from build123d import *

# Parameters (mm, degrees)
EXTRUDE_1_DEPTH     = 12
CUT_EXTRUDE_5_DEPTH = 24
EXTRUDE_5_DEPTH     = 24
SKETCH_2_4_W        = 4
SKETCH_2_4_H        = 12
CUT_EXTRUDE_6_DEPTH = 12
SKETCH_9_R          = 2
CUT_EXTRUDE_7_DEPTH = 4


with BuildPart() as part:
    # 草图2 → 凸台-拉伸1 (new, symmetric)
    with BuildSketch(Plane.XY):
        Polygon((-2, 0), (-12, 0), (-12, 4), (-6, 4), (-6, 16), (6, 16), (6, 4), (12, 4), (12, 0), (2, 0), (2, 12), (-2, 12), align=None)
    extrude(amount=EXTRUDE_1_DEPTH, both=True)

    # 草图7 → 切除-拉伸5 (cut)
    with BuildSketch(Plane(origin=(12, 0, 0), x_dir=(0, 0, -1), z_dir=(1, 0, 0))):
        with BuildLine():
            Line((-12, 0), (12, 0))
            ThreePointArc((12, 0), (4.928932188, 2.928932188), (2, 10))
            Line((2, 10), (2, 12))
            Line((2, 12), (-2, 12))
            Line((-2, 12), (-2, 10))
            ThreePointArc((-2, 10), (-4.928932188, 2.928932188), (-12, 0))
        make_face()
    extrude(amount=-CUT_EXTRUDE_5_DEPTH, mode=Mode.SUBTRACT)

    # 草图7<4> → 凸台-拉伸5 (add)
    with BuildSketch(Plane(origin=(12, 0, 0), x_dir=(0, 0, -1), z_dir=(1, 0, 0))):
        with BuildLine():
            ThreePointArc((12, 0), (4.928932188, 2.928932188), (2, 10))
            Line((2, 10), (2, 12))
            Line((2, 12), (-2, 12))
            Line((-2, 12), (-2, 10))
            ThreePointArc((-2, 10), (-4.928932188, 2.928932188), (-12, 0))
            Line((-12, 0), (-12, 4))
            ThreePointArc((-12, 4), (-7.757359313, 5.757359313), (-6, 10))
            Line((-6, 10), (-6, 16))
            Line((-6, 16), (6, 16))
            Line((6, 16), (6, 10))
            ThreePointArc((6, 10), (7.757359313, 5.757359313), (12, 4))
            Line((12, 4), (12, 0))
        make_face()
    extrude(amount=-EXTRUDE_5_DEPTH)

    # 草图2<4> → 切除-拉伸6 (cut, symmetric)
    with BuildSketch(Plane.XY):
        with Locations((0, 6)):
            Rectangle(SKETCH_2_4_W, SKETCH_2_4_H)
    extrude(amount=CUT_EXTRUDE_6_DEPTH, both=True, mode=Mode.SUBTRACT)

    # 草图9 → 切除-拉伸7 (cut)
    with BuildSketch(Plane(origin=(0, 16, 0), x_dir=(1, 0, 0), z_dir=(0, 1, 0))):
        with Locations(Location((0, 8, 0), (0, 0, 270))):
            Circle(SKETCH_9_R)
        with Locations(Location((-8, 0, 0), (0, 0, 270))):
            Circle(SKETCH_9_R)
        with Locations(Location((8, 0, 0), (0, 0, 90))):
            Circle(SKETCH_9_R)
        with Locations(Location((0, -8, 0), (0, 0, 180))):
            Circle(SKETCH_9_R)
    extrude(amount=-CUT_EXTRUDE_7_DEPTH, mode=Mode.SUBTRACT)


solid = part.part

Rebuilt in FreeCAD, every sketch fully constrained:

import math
import FreeCAD as App
import Part
import Sketcher
from FreeCAD import Vector
Q = App.Units.Quantity


def add_polygon(sketch, points):
    """Adds a closed chain of lines whose ends are joined by coincident constraints."""
    first, n = sketch.GeometryCount, len(points)
    for a, b in zip(points, points[1:] + points[:1]):
        sketch.addGeometry(Part.LineSegment(App.Vector(*a, 0), App.Vector(*b, 0)), False)
    for i in range(n):
        sketch.addConstraint(Sketcher.Constraint("Coincident", first + i, 2, first + (i + 1) % n, 1))

doc = App.newDocument("Part")
body = doc.addObject("PartDesign::Body", "Body")

# Sketch on XY plane
sketch1 = doc.addObject("Sketcher::SketchObject", "Sketch")
body.addObject(sketch1)
sketch1.AttachmentSupport = (doc.XY_Plane, [""])
sketch1.MapMode = "FlatFace"
add_polygon(sketch1, [(-12, 0), (-2, 0), (-2, 12), (2, 12), (2, 0), (12, 0), (12, 4), (6, 4), (6, 16), (-6, 16), (-6, 4), (-12, 4)])  # lines 0-11
sketch1.addConstraint(Sketcher.Constraint("Horizontal", 0))
sketch1.addConstraint(Sketcher.Constraint("Vertical", 1))
sketch1.addConstraint(Sketcher.Constraint("Horizontal", 2))
sketch1.addConstraint(Sketcher.Constraint("Vertical", 3))
sketch1.addConstraint(Sketcher.Constraint("Horizontal", 4))
sketch1.addConstraint(Sketcher.Constraint("Vertical", 5))
sketch1.addConstraint(Sketcher.Constraint("Horizontal", 6))
sketch1.addConstraint(Sketcher.Constraint("Vertical", 7))
sketch1.addConstraint(Sketcher.Constraint("Horizontal", 8))
sketch1.addConstraint(Sketcher.Constraint("Vertical", 9))
sketch1.addConstraint(Sketcher.Constraint("Horizontal", 10))
sketch1.addConstraint(Sketcher.Constraint("Vertical", 11))
sketch1.addConstraint(Sketcher.Constraint("Symmetric", 0, 2, 3, 2, -1, 1))
sketch1.addConstraint(Sketcher.Constraint("Symmetric", 6, 2, 9, 2, -2))
sketch1.addConstraint(Sketcher.Constraint("Symmetric", 4, 2, 11, 2, -2))
sketch1.addConstraint(Sketcher.Constraint("Equal", 8, 1))
sketch1.addConstraint(Sketcher.Constraint("Equal", 2, 5))
sketch1.addConstraint(Sketcher.Constraint("Equal", 3, 7))
sketch1.addConstraint(Sketcher.Constraint("DistanceX", 0, 1, 0, 2, Q("10 mm")))
sketch1.addConstraint(Sketcher.Constraint("DistanceX", 2, 1, 2, 2, Q("4 mm")))
sketch1.addConstraint(Sketcher.Constraint("DistanceX", 6, 2, 6, 1, Q("6 mm")))
pad1 = doc.addObject("PartDesign::Pad", "Pad")
body.addObject(pad1)
pad1.Profile = sketch1
pad1.Length = 24
pad1.Midplane = True

# Sketch on YZ plane
sketch2 = doc.addObject("Sketcher::SketchObject", "Sketch001")
body.addObject(sketch2)
sketch2.AttachmentSupport = (doc.YZ_Plane, [""])
sketch2.MapMode = "FlatFace"
sketch2.AttachmentOffset = App.Placement(Vector(0, 0, 12), App.Rotation())
sketch2.addGeometry(Part.LineSegment(Vector(0, 12, 0), Vector(0, -12, 0)), False)
sketch2.addGeometry(Part.ArcOfCircle(Part.Circle(Vector(10, -12, 0), Vector(0, 0, 1), 10), math.radians(90), math.radians(180)), False)
sketch2.addGeometry(Part.LineSegment(Vector(10, -2, 0), Vector(12, -2, 0)), False)
sketch2.addGeometry(Part.LineSegment(Vector(12, -2, 0), Vector(12, 2, 0)), False)
sketch2.addGeometry(Part.LineSegment(Vector(12, 2, 0), Vector(10, 2, 0)), False)
sketch2.addGeometry(Part.ArcOfCircle(Part.Circle(Vector(10, 12, 0), Vector(0, 0, 1), 10), math.radians(180), math.radians(270)), False)
sketch2.addConstraint(Sketcher.Constraint("Tangent", 0, 2, 1, 2))
sketch2.addConstraint(Sketcher.Constraint("Tangent", 1, 1, 2, 1))
sketch2.addConstraint(Sketcher.Constraint("Coincident", 2, 2, 3, 1))
sketch2.addConstraint(Sketcher.Constraint("Coincident", 3, 2, 4, 1))
sketch2.addConstraint(Sketcher.Constraint("Tangent", 4, 2, 5, 2))
sketch2.addConstraint(Sketcher.Constraint("Tangent", 5, 1, 0, 1))
sketch2.addConstraint(Sketcher.Constraint("Vertical", 0))
sketch2.addConstraint(Sketcher.Constraint("Horizontal", 2))
sketch2.addConstraint(Sketcher.Constraint("Vertical", 3))
sketch2.addConstraint(Sketcher.Constraint("Horizontal", 4))
sketch2.addConstraint(Sketcher.Constraint("Equal", 1, 5))
sketch2.addConstraint(Sketcher.Constraint("Symmetric", 0, 2, 5, 1, -1, 1))
sketch2.addConstraint(Sketcher.Constraint("Radius", 1, Q("10 mm")))
sketch2.addConstraint(Sketcher.Constraint("DistanceX", 2, 1, 2, 2, Q("2 mm")))
sketch2.addConstraint(Sketcher.Constraint("DistanceY", 0, 2, 0, 1, Q("24 mm")))
pocket1 = doc.addObject("PartDesign::Pocket", "Pocket")
body.addObject(pocket1)
pocket1.Profile = sketch2
pocket1.Length = 24

# Sketch on YZ plane
sketch3 = doc.addObject("Sketcher::SketchObject", "Sketch002")
body.addObject(sketch3)
sketch3.AttachmentSupport = (doc.YZ_Plane, [""])
sketch3.MapMode = "FlatFace"
sketch3.AttachmentOffset = App.Placement(Vector(0, 0, 12), App.Rotation())
sketch3.addGeometry(Part.ArcOfCircle(Part.Circle(Vector(10, -12, 0), Vector(0, 0, 1), 10), math.radians(90), math.radians(180)), False)
sketch3.addGeometry(Part.LineSegment(Vector(0, -12, 0), Vector(4, -12, 0)), False)
sketch3.addGeometry(Part.ArcOfCircle(Part.Circle(Vector(10, -12, 0), Vector(0, 0, 1), 6), math.radians(90), math.radians(180)), False)
sketch3.addGeometry(Part.LineSegment(Vector(10, -6, 0), Vector(16, -6, 0)), False)
sketch3.addGeometry(Part.LineSegment(Vector(16, -6, 0), Vector(16, 6, 0)), False)
sketch3.addGeometry(Part.LineSegment(Vector(16, 6, 0), Vector(10, 6, 0)), False)
sketch3.addGeometry(Part.ArcOfCircle(Part.Circle(Vector(10, 12, 0), Vector(0, 0, 1), 6), math.radians(180), math.radians(270)), False)
sketch3.addGeometry(Part.LineSegment(Vector(4, 12, 0), Vector(0, 12, 0)), False)
sketch3.addGeometry(Part.ArcOfCircle(Part.Circle(Vector(10, 12, 0), Vector(0, 0, 1), 10), math.radians(180), math.radians(270)), False)
sketch3.addGeometry(Part.LineSegment(Vector(10, 2, 0), Vector(12, 2, 0)), False)
sketch3.addGeometry(Part.LineSegment(Vector(12, 2, 0), Vector(12, -2, 0)), False)
sketch3.addGeometry(Part.LineSegment(Vector(12, -2, 0), Vector(10, -2, 0)), False)
sketch3.addConstraint(Sketcher.Constraint("Coincident", 0, 2, 1, 1))
sketch3.addConstraint(Sketcher.Constraint("Coincident", 1, 2, 2, 2))
sketch3.addConstraint(Sketcher.Constraint("Tangent", 2, 1, 3, 1))
sketch3.addConstraint(Sketcher.Constraint("Coincident", 3, 2, 4, 1))
sketch3.addConstraint(Sketcher.Constraint("Coincident", 4, 2, 5, 1))
sketch3.addConstraint(Sketcher.Constraint("Tangent", 5, 2, 6, 2))
sketch3.addConstraint(Sketcher.Constraint("Coincident", 6, 1, 7, 1))
sketch3.addConstraint(Sketcher.Constraint("Coincident", 7, 2, 8, 1))
sketch3.addConstraint(Sketcher.Constraint("Tangent", 8, 2, 9, 1))
sketch3.addConstraint(Sketcher.Constraint("Coincident", 9, 2, 10, 1))
sketch3.addConstraint(Sketcher.Constraint("Coincident", 10, 2, 11, 1))
sketch3.addConstraint(Sketcher.Constraint("Tangent", 11, 2, 0, 1))
sketch3.addConstraint(Sketcher.Constraint("Horizontal", 1))
sketch3.addConstraint(Sketcher.Constraint("Horizontal", 3))
sketch3.addConstraint(Sketcher.Constraint("Vertical", 4))
sketch3.addConstraint(Sketcher.Constraint("Horizontal", 5))
sketch3.addConstraint(Sketcher.Constraint("Horizontal", 7))
sketch3.addConstraint(Sketcher.Constraint("Horizontal", 9))
sketch3.addConstraint(Sketcher.Constraint("Vertical", 10))
sketch3.addConstraint(Sketcher.Constraint("Horizontal", 11))
sketch3.addConstraint(Sketcher.Constraint("Coincident", 2, 3, 0, 3))
sketch3.addConstraint(Sketcher.Constraint("Coincident", 8, 3, 6, 3))
sketch3.addConstraint(Sketcher.Constraint("Equal", 2, 6))
sketch3.addConstraint(Sketcher.Constraint("Equal", 0, 8))
sketch3.addConstraint(Sketcher.Constraint("Symmetric", 0, 2, 7, 2, -1, 1))
sketch3.addConstraint(Sketcher.Constraint("Symmetric", 0, 3, 6, 3, -1))
sketch3.addConstraint(Sketcher.Constraint("Horizontal", 2, 3, 0, 2))
sketch3.addConstraint(Sketcher.Constraint("Equal", 7, 10))
sketch3.addConstraint(Sketcher.Constraint("Radius", 0, Q("10 mm")))
sketch3.addConstraint(Sketcher.Constraint("Radius", 2, Q("6 mm")))
sketch3.addConstraint(Sketcher.Constraint("DistanceX", 3, 1, 3, 2, Q("6 mm")))
sketch3.addConstraint(Sketcher.Constraint("DistanceX", 9, 1, 9, 2, Q("2 mm")))
pad2 = doc.addObject("PartDesign::Pad", "Pad001")
body.addObject(pad2)
pad2.Profile = sketch3
pad2.Length = 24
pad2.Reversed = True

# Sketch on XY plane
sketch4 = doc.addObject("Sketcher::SketchObject", "Sketch003")
body.addObject(sketch4)
sketch4.AttachmentSupport = (doc.XY_Plane, [""])
sketch4.MapMode = "FlatFace"
add_polygon(sketch4, [(-2, 12), (-2, 0), (2, 0), (2, 12)])  # lines 0-3
sketch4.addConstraint(Sketcher.Constraint("Vertical", 0))
sketch4.addConstraint(Sketcher.Constraint("Horizontal", 1))
sketch4.addConstraint(Sketcher.Constraint("Vertical", 2))
sketch4.addConstraint(Sketcher.Constraint("Horizontal", 3))
sketch4.addConstraint(Sketcher.Constraint("Symmetric", 0, 2, 1, 2, -1, 1))
sketch4.addConstraint(Sketcher.Constraint("DistanceX", 1, 1, 1, 2, Q("4 mm")))
sketch4.addConstraint(Sketcher.Constraint("DistanceY", 0, 2, 0, 1, Q("12 mm")))
pocket2 = doc.addObject("PartDesign::Pocket", "Pocket001")
body.addObject(pocket2)
pocket2.Profile = sketch4
pocket2.Length = 24
pocket2.Midplane = True

# Sketch on XZ plane
sketch5 = doc.addObject("Sketcher::SketchObject", "Sketch004")
body.addObject(sketch5)
sketch5.AttachmentSupport = (doc.XZ_Plane, [""])
sketch5.MapMode = "FlatFace"
sketch5.AttachmentOffset = App.Placement(Vector(0, 0, -16), App.Rotation())
sketch5.addGeometry(Part.Circle(Vector(0, -8, 0), Vector(0, 0, 1), 2), False)
sketch5.addGeometry(Part.Circle(Vector(-8, 0, 0), Vector(0, 0, 1), 2), False)
sketch5.addGeometry(Part.Circle(Vector(8, 0, 0), Vector(0, 0, 1), 2), False)
sketch5.addGeometry(Part.Circle(Vector(0, 8, 0), Vector(0, 0, 1), 2), False)
sketch5.addConstraint(Sketcher.Constraint("Equal", 0, 1))
sketch5.addConstraint(Sketcher.Constraint("Equal", 1, 2))
sketch5.addConstraint(Sketcher.Constraint("Equal", 2, 3))
sketch5.addConstraint(Sketcher.Constraint("Symmetric", 1, 3, 2, 3, -1, 1))
sketch5.addConstraint(Sketcher.Constraint("Symmetric", 0, 3, 3, 3, -1, 1))
sketch5.addConstraint(Sketcher.Constraint("PointOnObject", 0, 3, -2))
sketch5.addConstraint(Sketcher.Constraint("PointOnObject", 1, 3, -1))
sketch5.addConstraint(Sketcher.Constraint("Diameter", 0, Q("4 mm")))
sketch5.addConstraint(Sketcher.Constraint("DistanceY", 0, 3, -1, 1, Q("8 mm")))
sketch5.addConstraint(Sketcher.Constraint("DistanceX", 1, 3, -1, 1, Q("8 mm")))
pocket3 = doc.addObject("PartDesign::Pocket", "Pocket002")
body.addObject(pocket3)
pocket3.Profile = sketch5
pocket3.Length = 4
pocket3.Reversed = True

doc.recompute()
